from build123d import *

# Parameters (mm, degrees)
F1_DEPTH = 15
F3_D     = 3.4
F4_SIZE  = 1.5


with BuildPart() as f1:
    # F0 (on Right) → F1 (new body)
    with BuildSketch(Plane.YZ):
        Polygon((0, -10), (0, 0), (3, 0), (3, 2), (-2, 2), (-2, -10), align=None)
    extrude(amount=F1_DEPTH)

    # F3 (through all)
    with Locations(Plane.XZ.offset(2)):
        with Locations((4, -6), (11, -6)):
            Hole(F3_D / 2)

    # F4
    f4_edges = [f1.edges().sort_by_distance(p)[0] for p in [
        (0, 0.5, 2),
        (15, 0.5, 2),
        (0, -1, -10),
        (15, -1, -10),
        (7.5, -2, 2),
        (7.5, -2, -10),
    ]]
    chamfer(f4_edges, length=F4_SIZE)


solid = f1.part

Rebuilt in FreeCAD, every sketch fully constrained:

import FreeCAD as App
import Part
import Sketcher
from FreeCAD import Vector
Q = App.Units.Quantity


def edges_at(feature, points):
    """Names of the edges that pass closest to the given points."""
    edges = feature.Shape.Edges
    near = lambda p: min(range(len(edges)), key=lambda i: edges[i].distToShape(Part.Vertex(*p))[0])
    return sorted({f"Edge{near(p) + 1}" for p in points})


def add_polygon(sketch, points):
    """Adds a closed chain of lines whose ends are joined by coincident constraints."""
    first, n = sketch.GeometryCount, len(points)
    for a, b in zip(points, points[1:] + points[:1]):
        sketch.addGeometry(Part.LineSegment(App.Vector(*a, 0), App.Vector(*b, 0)), False)
    for i in range(n):
        sketch.addConstraint(Sketcher.Constraint("Coincident", first + i, 2, first + (i + 1) % n, 1))

doc = App.newDocument("Part")
body = doc.addObject("PartDesign::Body", "Body")

# Sketch on YZ plane
sketch1 = doc.addObject("Sketcher::SketchObject", "Sketch")
body.addObject(sketch1)
sketch1.AttachmentSupport = (doc.YZ_Plane, [""])
sketch1.MapMode = "FlatFace"
add_polygon(sketch1, [(0, -10), (0, 0), (3, 0), (3, 2), (-2, 2), (-2, -10)])  # lines 0-5
sketch1.addConstraint(Sketcher.Constraint("Vertical", 0))
sketch1.addConstraint(Sketcher.Constraint("Horizontal", 1))
sketch1.addConstraint(Sketcher.Constraint("Vertical", 2))
sketch1.addConstraint(Sketcher.Constraint("Horizontal", 3))
sketch1.addConstraint(Sketcher.Constraint("Vertical", 4))
sketch1.addConstraint(Sketcher.Constraint("Horizontal", 5))
sketch1.addConstraint(Sketcher.Constraint("Coincident", 0, 2, -1, 1))
sketch1.addConstraint(Sketcher.Constraint("Equal", 5, 2))
sketch1.addConstraint(Sketcher.Constraint("DistanceX", 1, 1, 1, 2, Q("3 mm")))
sketch1.addConstraint(Sketcher.Constraint("DistanceX", 3, 2, 3, 1, Q("5 mm")))
sketch1.addConstraint(Sketcher.Constraint("DistanceY", 0, 1, 0, 2, Q("10 mm")))
pad1 = doc.addObject("PartDesign::Pad", "Pad")
body.addObject(pad1)
pad1.Profile = sketch1
pad1.Length = 15

# Sketch on XZ plane
sketch2 = doc.addObject("Sketcher::SketchObject", "Sketch001")
body.addObject(sketch2)
sketch2.AttachmentSupport = (doc.XZ_Plane, [""])
sketch2.MapMode = "FlatFace"
sketch2.AttachmentOffset = App.Placement(Vector(0, 0, 2), App.Rotation())
sketch2.addGeometry(Part.Circle(Vector(4, -6, 0), Vector(0, 0, 1), 1.7), False)
sketch2.addGeometry(Part.Circle(Vector(11, -6, 0), Vector(0, 0, 1), 1.7), False)
sketch2.addConstraint(Sketcher.Constraint("Equal", 0, 1))
sketch2.addConstraint(Sketcher.Constraint("Horizontal", 0, 3, 1, 3))
sketch2.addConstraint(Sketcher.Constraint("Diameter", 0, Q("3.4 mm")))
sketch2.addConstraint(Sketcher.Constraint("DistanceX", -1, 1, 0, 3, Q("4 mm")))
sketch2.addConstraint(Sketcher.Constraint("DistanceY", 0, 3, -1, 1, Q("6 mm")))
sketch2.addConstraint(Sketcher.Constraint("DistanceX", -1, 1, 1, 3, Q("11 mm")))
doc.recompute()
hole = doc.addObject("PartDesign::Hole", "Hole")
body.addObject(hole)
hole.Profile = sketch2
hole.ThreadType = "None"
hole.Diameter = 3.4
hole.DepthType = "ThroughAll"
doc.recompute()

chamfer = doc.addObject("PartDesign::Chamfer", "Chamfer")
body.addObject(chamfer)
chamfer.Base = (hole, edges_at(hole, [
    (0, 0.5, 2),
    (15, 0.5, 2),
    (0, -1, -10),
    (15, -1, -10),
    (7.5, -2, 2),
    (7.5, -2, -10),
]))
chamfer.Size = 1.5

doc.recompute()
